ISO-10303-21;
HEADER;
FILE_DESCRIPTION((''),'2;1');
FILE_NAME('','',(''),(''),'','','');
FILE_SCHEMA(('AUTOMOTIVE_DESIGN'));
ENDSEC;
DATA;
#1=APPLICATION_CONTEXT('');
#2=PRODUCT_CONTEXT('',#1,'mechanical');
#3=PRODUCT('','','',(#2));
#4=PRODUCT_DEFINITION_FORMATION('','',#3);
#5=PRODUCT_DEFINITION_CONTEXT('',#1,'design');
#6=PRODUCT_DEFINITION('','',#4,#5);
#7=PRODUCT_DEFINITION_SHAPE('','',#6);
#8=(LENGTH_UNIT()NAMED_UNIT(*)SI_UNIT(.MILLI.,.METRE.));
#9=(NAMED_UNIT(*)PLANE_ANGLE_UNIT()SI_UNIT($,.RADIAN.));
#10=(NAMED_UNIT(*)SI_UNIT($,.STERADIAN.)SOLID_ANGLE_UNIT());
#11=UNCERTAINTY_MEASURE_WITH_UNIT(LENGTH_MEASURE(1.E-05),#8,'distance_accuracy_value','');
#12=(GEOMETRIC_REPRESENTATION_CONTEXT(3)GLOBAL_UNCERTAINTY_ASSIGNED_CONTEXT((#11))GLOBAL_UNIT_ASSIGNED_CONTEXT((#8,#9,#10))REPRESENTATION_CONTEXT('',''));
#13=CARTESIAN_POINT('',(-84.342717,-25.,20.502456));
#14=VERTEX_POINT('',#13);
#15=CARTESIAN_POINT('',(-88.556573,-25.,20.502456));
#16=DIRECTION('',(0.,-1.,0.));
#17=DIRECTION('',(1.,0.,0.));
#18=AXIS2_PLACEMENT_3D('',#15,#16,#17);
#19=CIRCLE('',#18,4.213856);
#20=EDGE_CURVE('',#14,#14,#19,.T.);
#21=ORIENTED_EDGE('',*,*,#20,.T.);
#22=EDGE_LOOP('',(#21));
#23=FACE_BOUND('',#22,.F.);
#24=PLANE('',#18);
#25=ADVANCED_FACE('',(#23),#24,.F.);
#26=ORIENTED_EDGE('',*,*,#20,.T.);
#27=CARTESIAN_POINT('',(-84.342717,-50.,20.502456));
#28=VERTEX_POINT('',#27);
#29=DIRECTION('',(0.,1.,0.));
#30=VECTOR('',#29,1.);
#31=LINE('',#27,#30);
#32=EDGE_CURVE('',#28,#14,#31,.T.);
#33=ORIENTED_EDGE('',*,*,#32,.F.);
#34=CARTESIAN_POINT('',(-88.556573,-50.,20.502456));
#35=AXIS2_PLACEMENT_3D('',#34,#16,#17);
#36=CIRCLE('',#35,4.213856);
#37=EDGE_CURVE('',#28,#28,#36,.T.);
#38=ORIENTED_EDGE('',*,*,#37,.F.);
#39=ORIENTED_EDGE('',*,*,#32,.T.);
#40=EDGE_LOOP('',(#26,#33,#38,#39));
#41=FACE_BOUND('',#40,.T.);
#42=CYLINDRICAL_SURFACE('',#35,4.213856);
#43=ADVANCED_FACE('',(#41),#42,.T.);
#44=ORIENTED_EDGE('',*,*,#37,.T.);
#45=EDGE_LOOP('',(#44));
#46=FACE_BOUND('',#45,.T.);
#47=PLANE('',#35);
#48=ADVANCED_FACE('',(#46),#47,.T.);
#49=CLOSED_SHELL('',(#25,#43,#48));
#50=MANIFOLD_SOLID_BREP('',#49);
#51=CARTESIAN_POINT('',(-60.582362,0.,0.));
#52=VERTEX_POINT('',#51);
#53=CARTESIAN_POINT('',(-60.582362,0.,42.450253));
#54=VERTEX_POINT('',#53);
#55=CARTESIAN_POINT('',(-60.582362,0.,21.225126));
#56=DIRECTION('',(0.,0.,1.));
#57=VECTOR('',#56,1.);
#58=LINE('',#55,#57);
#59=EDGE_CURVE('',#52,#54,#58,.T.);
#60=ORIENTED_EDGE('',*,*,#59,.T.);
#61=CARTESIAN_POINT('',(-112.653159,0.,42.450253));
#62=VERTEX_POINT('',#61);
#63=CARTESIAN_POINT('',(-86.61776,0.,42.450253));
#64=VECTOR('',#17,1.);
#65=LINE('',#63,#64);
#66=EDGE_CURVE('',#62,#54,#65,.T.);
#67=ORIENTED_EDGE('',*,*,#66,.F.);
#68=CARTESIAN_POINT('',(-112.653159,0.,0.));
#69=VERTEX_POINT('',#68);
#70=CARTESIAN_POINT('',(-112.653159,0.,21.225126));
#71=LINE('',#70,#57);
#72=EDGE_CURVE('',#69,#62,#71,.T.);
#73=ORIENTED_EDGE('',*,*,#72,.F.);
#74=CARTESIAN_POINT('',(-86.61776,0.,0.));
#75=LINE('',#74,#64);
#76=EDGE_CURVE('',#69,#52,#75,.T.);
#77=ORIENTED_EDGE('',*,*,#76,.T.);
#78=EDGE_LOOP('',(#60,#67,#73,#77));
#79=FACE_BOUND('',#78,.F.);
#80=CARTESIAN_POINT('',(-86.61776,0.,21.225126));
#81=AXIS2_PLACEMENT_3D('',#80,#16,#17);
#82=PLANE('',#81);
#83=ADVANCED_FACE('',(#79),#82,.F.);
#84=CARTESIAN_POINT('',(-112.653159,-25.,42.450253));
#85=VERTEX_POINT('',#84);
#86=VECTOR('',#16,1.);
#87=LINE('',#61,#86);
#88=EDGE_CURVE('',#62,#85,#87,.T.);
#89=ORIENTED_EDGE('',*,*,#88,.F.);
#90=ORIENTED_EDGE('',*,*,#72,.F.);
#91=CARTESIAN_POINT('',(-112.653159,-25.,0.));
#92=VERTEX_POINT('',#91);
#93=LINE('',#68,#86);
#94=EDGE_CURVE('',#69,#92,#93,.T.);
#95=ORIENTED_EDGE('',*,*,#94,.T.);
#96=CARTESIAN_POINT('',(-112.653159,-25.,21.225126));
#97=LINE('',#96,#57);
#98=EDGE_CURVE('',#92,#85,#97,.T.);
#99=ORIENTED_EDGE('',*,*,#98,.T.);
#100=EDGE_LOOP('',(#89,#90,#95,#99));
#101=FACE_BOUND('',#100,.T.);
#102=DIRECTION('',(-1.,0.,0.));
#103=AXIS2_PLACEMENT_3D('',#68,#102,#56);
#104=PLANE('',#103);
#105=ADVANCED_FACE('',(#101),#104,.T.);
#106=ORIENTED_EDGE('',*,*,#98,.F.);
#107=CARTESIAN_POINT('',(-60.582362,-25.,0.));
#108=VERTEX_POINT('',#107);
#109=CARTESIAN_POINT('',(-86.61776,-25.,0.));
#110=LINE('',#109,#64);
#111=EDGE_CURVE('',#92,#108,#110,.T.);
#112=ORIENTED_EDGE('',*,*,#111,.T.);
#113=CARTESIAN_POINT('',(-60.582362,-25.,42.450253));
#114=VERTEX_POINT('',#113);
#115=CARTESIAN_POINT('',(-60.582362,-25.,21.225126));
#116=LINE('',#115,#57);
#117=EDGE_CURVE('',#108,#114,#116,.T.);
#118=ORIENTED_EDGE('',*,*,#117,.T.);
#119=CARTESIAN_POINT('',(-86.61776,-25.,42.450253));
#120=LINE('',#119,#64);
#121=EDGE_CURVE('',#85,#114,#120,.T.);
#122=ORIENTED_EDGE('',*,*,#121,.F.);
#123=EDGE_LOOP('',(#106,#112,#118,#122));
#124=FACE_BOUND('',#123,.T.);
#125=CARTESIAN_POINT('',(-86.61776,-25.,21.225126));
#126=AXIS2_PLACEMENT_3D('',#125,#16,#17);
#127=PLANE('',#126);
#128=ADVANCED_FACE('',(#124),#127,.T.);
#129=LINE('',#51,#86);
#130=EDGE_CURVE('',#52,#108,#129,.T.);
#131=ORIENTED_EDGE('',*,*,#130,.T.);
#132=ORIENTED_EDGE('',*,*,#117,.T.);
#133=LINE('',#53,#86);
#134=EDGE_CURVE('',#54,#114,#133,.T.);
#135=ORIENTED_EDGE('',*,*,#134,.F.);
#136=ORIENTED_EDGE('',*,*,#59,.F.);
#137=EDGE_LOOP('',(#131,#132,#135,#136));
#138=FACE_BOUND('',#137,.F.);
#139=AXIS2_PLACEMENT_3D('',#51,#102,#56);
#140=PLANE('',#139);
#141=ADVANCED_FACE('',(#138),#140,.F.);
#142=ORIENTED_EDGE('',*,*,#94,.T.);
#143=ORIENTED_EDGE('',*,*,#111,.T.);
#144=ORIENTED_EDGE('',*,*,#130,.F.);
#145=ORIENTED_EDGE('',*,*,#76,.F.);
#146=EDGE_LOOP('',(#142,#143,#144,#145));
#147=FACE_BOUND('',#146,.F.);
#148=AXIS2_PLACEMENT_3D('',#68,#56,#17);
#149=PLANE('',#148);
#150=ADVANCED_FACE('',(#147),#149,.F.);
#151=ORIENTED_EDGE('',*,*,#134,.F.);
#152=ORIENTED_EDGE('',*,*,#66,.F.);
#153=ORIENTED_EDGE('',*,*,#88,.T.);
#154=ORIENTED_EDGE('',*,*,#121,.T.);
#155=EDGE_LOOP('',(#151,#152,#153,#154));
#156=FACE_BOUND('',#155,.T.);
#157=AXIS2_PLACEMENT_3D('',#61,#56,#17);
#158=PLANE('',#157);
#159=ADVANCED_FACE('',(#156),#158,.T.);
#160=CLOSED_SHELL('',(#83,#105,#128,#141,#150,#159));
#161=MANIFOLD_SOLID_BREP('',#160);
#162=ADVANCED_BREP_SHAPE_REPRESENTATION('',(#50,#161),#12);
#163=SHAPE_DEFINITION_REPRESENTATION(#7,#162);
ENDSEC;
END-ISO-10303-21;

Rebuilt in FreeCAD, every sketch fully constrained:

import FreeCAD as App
import Part
import Sketcher
from FreeCAD import Vector

doc = App.newDocument("Part")
body = doc.addObject("PartDesign::Body", "Body")

# Sketch on XZ plane
sketch1 = body.newObject("Sketcher::SketchObject", "Sketch")
sketch1.AttachmentSupport = (doc.getObject("XZ_Plane"), [""])
sketch1.MapMode = "FlatFace"
sketch1.addGeometry([
    Part.LineSegment(Vector(-113, 42, 0), Vector(-113, 0, 0)),
    Part.LineSegment(Vector(-113, 0, 0), Vector(-61, 0, 0)),
    Part.LineSegment(Vector(-61, 0, 0), Vector(-61, 42, 0)),
    Part.LineSegment(Vector(-61, 42, 0), Vector(-113, 42, 0)),
], False)
sketch1.addConstraint([
    Sketcher.Constraint("Coincident", 0, 2, 1, 1),
    Sketcher.Constraint("Coincident", 1, 2, 2, 1),
    Sketcher.Constraint("Coincident", 2, 2, 3, 1),
    Sketcher.Constraint("Coincident", 3, 2, 0, 1),
    Sketcher.Constraint("Vertical", 0),
    Sketcher.Constraint("Horizontal", 1),
    Sketcher.Constraint("Vertical", 2),
    Sketcher.Constraint("Horizontal", 3),
    Sketcher.Constraint("PointOnObject", 0, 2, -1),
    Sketcher.Constraint("DistanceX", 1, 1, 1, 2, 52.070796),
    Sketcher.Constraint("DistanceY", 0, 2, 0, 1, 42.450253),
    Sketcher.Constraint("DistanceX", 0, 2, -1, 1, 112.653159),
])
pad1 = body.newObject("PartDesign::Pad", "Pad")
pad1.Profile = sketch1
pad1.Length = 25
body2 = doc.addObject("PartDesign::Body", "Body001")

# Sketch on XZ plane
sketch2 = body2.newObject("Sketcher::SketchObject", "Sketch001")
sketch2.AttachmentSupport = (doc.getObject("XZ_Plane001"), [""])
sketch2.MapMode = "FlatFace"
sketch2.AttachmentOffset = App.Placement(Vector(0, 0, 50), App.Rotation())
sketch2.addGeometry(Part.Circle(Vector(-88.6, 20.5, 0), Vector(0, 0, 1), 4.2), False)
sketch2.addConstraint([
    Sketcher.Constraint("Diameter", 0, 8.427712),
    Sketcher.Constraint("DistanceX", 0, 3, -1, 1, 88.556573),
    Sketcher.Constraint("DistanceY", -1, 1, 0, 3, 20.502456),
])
pad2 = body2.newObject("PartDesign::Pad", "Pad001")
pad2.Profile = sketch2
pad2.Length = 25
pad2.Reversed = True

doc.recompute()
